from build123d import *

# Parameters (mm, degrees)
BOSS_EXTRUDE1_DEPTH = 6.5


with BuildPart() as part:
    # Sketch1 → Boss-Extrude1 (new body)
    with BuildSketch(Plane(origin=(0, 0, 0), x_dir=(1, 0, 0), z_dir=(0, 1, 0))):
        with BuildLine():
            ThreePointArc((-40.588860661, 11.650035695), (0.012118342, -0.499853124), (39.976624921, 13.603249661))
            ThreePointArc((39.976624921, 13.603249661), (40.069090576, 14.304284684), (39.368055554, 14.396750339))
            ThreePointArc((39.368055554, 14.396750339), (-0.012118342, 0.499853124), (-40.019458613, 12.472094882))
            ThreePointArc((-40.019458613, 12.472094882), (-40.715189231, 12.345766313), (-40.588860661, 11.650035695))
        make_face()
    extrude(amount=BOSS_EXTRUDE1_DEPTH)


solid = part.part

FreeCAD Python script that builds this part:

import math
import FreeCAD as App
import Part
import Sketcher

V = App.Vector

doc = App.newDocument("Part")
body = doc.addObject("PartDesign::Body", "Body")

# Sketch on XZ plane
sketch1 = body.newObject("Sketcher::SketchObject", "Sketch")
sketch1.AttachmentSupport = (doc.getObject("XZ_Plane"), [""])
sketch1.MapMode = "FlatFace"
sketch1.addGeometry([
    Part.ArcOfCircle(Part.Circle(V(-1.6, -67.9, 0), V(0, 0, 1), 68.4), math.radians(53), math.radians(125)),
    Part.ArcOfCircle(Part.Circle(V(39.7, -14, 0), V(0, 0, 1), 0.5), math.radians(-127), math.radians(53)),
    Part.ArcOfCircle(Part.Circle(V(-1.6, -67.9, 0), V(0, 0, 1), 67.4), math.radians(53), math.radians(125)),
    Part.ArcOfCircle(Part.Circle(V(-40.3, -12.1, 0), V(0, 0, 1), 0.5), math.radians(125), math.radians(305)),
], False)
sketch1.addConstraint([
    Sketcher.Constraint("Tangent", 0, 1, 1, 2),
    Sketcher.Constraint("Tangent", 1, 1, 2, 1),
    Sketcher.Constraint("Tangent", 2, 2, 3, 2),
    Sketcher.Constraint("Tangent", 3, 1, 0, 2),
    Sketcher.Constraint("Coincident", 2, 3, 0, 3),
    Sketcher.Constraint("Radius", 1, 0.5),
    Sketcher.Constraint("DistanceY", 1, 3, -1, 1, 14.0),
    Sketcher.Constraint("Radius", 0, 68.393413),
    Sketcher.Constraint("DistanceX", 3, 3, 1, 3, 79.9765),
    Sketcher.Constraint("DistanceX", 3, 1, 3, 3, 0.284701),
    Sketcher.Constraint("DistanceX", 0, 3, -1, 1, 1.645511),
])
pad1 = body.newObject("PartDesign::Pad", "Pad")
pad1.Profile = sketch1
pad1.Length = 6.5
pad1.Reversed = True

doc.recompute()
